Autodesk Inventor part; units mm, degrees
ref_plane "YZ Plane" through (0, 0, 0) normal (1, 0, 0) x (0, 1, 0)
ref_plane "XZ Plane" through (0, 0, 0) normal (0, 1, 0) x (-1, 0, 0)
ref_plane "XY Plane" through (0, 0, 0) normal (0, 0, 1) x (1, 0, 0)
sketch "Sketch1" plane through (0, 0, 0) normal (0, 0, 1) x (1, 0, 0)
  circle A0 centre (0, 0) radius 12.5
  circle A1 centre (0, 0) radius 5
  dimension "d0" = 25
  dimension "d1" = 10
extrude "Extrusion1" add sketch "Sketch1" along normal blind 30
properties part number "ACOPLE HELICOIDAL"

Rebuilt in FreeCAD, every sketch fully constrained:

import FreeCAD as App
import Part
import Sketcher

doc = App.newDocument("Part")
body = doc.addObject("PartDesign::Body", "Body")

sketch1 = body.newObject("Sketcher::SketchObject", "Sketch")
sketch1.AttachmentSupport = (doc.getObject("XY_Plane"), [""])
sketch1.MapMode = "FlatFace"
sketch1.addGeometry([
    Part.Circle(App.Vector(0, 0, 0), App.Vector(0, 0, 1), 12.5),
    Part.Circle(App.Vector(0, 0, 0), App.Vector(0, 0, 1), 5),
], False)
sketch1.addConstraint([
    Sketcher.Constraint("Coincident", 0, 3, -1, 1),
    Sketcher.Constraint("Coincident", 1, 3, -1, 1),
    Sketcher.Constraint("Diameter", 0, 25.0),
    Sketcher.Constraint("Diameter", 1, 10.0),
])
pad1 = body.newObject("PartDesign::Pad", "Pad")
pad1.Profile = sketch1
pad1.Length = 30

doc.recompute()
